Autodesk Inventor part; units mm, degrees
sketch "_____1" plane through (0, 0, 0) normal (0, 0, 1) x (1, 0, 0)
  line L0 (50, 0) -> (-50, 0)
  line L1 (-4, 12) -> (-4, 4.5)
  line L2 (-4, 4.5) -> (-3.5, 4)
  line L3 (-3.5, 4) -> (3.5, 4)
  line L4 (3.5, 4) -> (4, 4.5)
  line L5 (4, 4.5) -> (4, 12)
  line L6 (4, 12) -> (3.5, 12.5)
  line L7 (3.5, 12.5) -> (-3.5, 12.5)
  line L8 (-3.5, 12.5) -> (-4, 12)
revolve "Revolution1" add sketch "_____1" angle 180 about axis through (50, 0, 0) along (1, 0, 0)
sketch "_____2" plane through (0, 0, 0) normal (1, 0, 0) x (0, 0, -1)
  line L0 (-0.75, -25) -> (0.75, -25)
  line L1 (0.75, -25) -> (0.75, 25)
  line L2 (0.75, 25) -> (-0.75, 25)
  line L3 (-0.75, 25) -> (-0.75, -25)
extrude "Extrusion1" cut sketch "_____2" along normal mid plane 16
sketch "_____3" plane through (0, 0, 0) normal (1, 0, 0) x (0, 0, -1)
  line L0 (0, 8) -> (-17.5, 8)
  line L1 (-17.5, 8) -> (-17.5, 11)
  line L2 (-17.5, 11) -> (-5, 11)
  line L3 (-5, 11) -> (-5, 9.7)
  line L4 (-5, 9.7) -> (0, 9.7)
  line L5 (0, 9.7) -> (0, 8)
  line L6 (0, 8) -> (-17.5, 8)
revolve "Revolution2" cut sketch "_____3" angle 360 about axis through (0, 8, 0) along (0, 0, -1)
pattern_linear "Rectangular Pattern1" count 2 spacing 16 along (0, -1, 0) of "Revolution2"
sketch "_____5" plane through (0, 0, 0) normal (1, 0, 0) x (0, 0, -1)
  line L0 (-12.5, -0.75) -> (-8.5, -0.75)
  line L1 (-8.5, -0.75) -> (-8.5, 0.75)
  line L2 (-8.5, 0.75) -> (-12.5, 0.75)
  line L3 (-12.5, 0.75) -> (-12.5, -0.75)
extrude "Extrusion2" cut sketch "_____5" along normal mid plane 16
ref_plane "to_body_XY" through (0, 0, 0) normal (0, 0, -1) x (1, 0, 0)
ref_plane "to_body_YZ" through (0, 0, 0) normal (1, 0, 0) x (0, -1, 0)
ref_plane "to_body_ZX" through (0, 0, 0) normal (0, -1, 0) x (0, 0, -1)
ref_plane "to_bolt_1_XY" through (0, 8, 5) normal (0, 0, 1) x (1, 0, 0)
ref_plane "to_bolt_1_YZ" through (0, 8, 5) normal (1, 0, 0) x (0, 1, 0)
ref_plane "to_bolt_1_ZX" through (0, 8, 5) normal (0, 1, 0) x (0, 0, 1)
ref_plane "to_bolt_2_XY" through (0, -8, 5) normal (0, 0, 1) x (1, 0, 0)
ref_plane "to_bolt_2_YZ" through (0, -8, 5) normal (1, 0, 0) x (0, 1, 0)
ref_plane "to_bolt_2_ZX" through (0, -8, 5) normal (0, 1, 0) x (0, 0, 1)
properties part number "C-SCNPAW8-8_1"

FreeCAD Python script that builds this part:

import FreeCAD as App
import Part
import Sketcher

V = App.Vector
Q = App.Units.Quantity

doc = App.newDocument("Part")
body = doc.addObject("PartDesign::Body", "Body")

# Sketch on XY plane
sketch1 = doc.addObject("Sketcher::SketchObject", "Sketch")
body.addObject(sketch1)
sketch1.AttachmentSupport = (doc.XY_Plane, [""])
sketch1.MapMode = "FlatFace"
sketch1.addGeometry(Part.LineSegment(V(-3.5, 12.5, 0), V(-4, 12, 0)), False)
sketch1.addGeometry(Part.LineSegment(V(-4, 12, 0), V(-4, 4.5, 0)), False)
sketch1.addGeometry(Part.LineSegment(V(-4, 4.5, 0), V(-3.5, 4, 0)), False)
sketch1.addGeometry(Part.LineSegment(V(-3.5, 4, 0), V(3.5, 4, 0)), False)
sketch1.addGeometry(Part.LineSegment(V(3.5, 4, 0), V(4, 4.5, 0)), False)
sketch1.addGeometry(Part.LineSegment(V(4, 4.5, 0), V(4, 12, 0)), False)
sketch1.addGeometry(Part.LineSegment(V(4, 12, 0), V(3.5, 12.5, 0)), False)
sketch1.addGeometry(Part.LineSegment(V(3.5, 12.5, 0), V(-3.5, 12.5, 0)), False)
sketch1.addConstraint(Sketcher.Constraint("Coincident", 0, 2, 1, 1))
sketch1.addConstraint(Sketcher.Constraint("Coincident", 1, 2, 2, 1))
sketch1.addConstraint(Sketcher.Constraint("Coincident", 2, 2, 3, 1))
sketch1.addConstraint(Sketcher.Constraint("Coincident", 3, 2, 4, 1))
sketch1.addConstraint(Sketcher.Constraint("Coincident", 4, 2, 5, 1))
sketch1.addConstraint(Sketcher.Constraint("Coincident", 5, 2, 6, 1))
sketch1.addConstraint(Sketcher.Constraint("Coincident", 6, 2, 7, 1))
sketch1.addConstraint(Sketcher.Constraint("Coincident", 7, 2, 0, 1))
sketch1.addConstraint(Sketcher.Constraint("Vertical", 1))
sketch1.addConstraint(Sketcher.Constraint("Horizontal", 3))
sketch1.addConstraint(Sketcher.Constraint("Vertical", 5))
sketch1.addConstraint(Sketcher.Constraint("Horizontal", 7))
sketch1.addConstraint(Sketcher.Constraint("Symmetric", 1, 2, 4, 2, -2))
sketch1.addConstraint(Sketcher.Constraint("Perpendicular", 0, 2))
sketch1.addConstraint(Sketcher.Constraint("Perpendicular", 2, 4))
sketch1.addConstraint(Sketcher.Constraint("Perpendicular", 4, 6))
sketch1.addConstraint(Sketcher.Constraint("Horizontal", 0, 2, 5, 2))
sketch1.addConstraint(Sketcher.Constraint("Vertical", 3, 2, 6, 2))
sketch1.addConstraint(Sketcher.Constraint("Vertical", 2, 2, 7, 2))
sketch1.addConstraint(Sketcher.Constraint("DistanceX", 3, 1, 3, 2, Q("7 mm")))
sketch1.addConstraint(Sketcher.Constraint("DistanceY", 1, 2, 1, 1, Q("7.5 mm")))
sketch1.addConstraint(Sketcher.Constraint("DistanceX", 0, 2, -1, 1, Q("4 mm")))
sketch1.addConstraint(Sketcher.Constraint("DistanceY", -1, 1, 0, 2, Q("12 mm")))
revolution = doc.addObject("PartDesign::Revolution", "Revolution")
body.addObject(revolution)
revolution.Profile = sketch1
revolution.ReferenceAxis = (sketch1, ["H_Axis"])
revolution.Angle = 180

# Sketch on YZ plane
sketch2 = doc.addObject("Sketcher::SketchObject", "Sketch001")
body.addObject(sketch2)
sketch2.AttachmentSupport = (doc.YZ_Plane, [""])
sketch2.MapMode = "FlatFace"
sketch2.addGeometry(Part.LineSegment(V(25, 0.75, 0), V(-25, 0.75, 0)), False)
sketch2.addGeometry(Part.LineSegment(V(-25, 0.75, 0), V(-25, -0.75, 0)), False)
sketch2.addGeometry(Part.LineSegment(V(-25, -0.75, 0), V(25, -0.75, 0)), False)
sketch2.addGeometry(Part.LineSegment(V(25, -0.75, 0), V(25, 0.75, 0)), False)
sketch2.addConstraint(Sketcher.Constraint("Coincident", 0, 2, 1, 1))
sketch2.addConstraint(Sketcher.Constraint("Coincident", 1, 2, 2, 1))
sketch2.addConstraint(Sketcher.Constraint("Coincident", 2, 2, 3, 1))
sketch2.addConstraint(Sketcher.Constraint("Coincident", 3, 2, 0, 1))
sketch2.addConstraint(Sketcher.Constraint("Horizontal", 0))
sketch2.addConstraint(Sketcher.Constraint("Vertical", 1))
sketch2.addConstraint(Sketcher.Constraint("Horizontal", 2))
sketch2.addConstraint(Sketcher.Constraint("Vertical", 3))
sketch2.addConstraint(Sketcher.Constraint("Symmetric", 0, 2, 2, 2, -1, 1))
sketch2.addConstraint(Sketcher.Constraint("DistanceX", 0, 2, 0, 1, Q("50 mm")))
sketch2.addConstraint(Sketcher.Constraint("DistanceY", 1, 2, 1, 1, Q("1.5 mm")))
pocket1 = doc.addObject("PartDesign::Pocket", "Pocket")
body.addObject(pocket1)
pocket1.Profile = sketch2
pocket1.Length = 16
pocket1.Midplane = True

# Sketch on YZ plane
sketch3 = doc.addObject("Sketcher::SketchObject", "Sketch002")
body.addObject(sketch3)
sketch3.AttachmentSupport = (doc.YZ_Plane, [""])
sketch3.MapMode = "FlatFace"
sketch3.addGeometry(Part.LineSegment(V(8, 17.5, 0), V(8, 0, 0)), False)
sketch3.addGeometry(Part.LineSegment(V(8, 0, 0), V(9.7, 0, 0)), False)
sketch3.addGeometry(Part.LineSegment(V(9.7, 0, 0), V(9.7, 5, 0)), False)
sketch3.addGeometry(Part.LineSegment(V(9.7, 5, 0), V(11, 5, 0)), False)
sketch3.addGeometry(Part.LineSegment(V(11, 5, 0), V(11, 17.5, 0)), False)
sketch3.addGeometry(Part.LineSegment(V(11, 17.5, 0), V(8, 17.5, 0)), False)
sketch3.addGeometry(Part.LineSegment(V(8, 17.5, 0), V(8, 0, 0)), True)  # axis
sketch3.addConstraint(Sketcher.Constraint("Coincident", 0, 2, 1, 1))
sketch3.addConstraint(Sketcher.Constraint("Coincident", 1, 2, 2, 1))
sketch3.addConstraint(Sketcher.Constraint("Coincident", 2, 2, 3, 1))
sketch3.addConstraint(Sketcher.Constraint("Coincident", 3, 2, 4, 1))
sketch3.addConstraint(Sketcher.Constraint("Coincident", 4, 2, 5, 1))
sketch3.addConstraint(Sketcher.Constraint("Coincident", 5, 2, 0, 1))
sketch3.addConstraint(Sketcher.Constraint("Vertical", 0))
sketch3.addConstraint(Sketcher.Constraint("Horizontal", 1))
sketch3.addConstraint(Sketcher.Constraint("Vertical", 2))
sketch3.addConstraint(Sketcher.Constraint("Horizontal", 3))
sketch3.addConstraint(Sketcher.Constraint("Vertical", 4))
sketch3.addConstraint(Sketcher.Constraint("Horizontal", 5))
sketch3.addConstraint(Sketcher.Constraint("Vertical", 6))
sketch3.addConstraint(Sketcher.Constraint("Coincident", 6, 1, 5, 2))
sketch3.addConstraint(Sketcher.Constraint("PointOnObject", 0, 2, -1))
sketch3.addConstraint(Sketcher.Constraint("PointOnObject", 6, 2, -1))
sketch3.addConstraint(Sketcher.Constraint("DistanceX", 5, 2, 5, 1, Q("3 mm")))
sketch3.addConstraint(Sketcher.Constraint("DistanceY", 2, 1, 2, 2, Q("5 mm")))
sketch3.addConstraint(Sketcher.Constraint("DistanceX", 1, 1, 1, 2, Q("1.7 mm")))
sketch3.addConstraint(Sketcher.Constraint("DistanceY", 0, 2, 0, 1, Q("17.5 mm")))
sketch3.addConstraint(Sketcher.Constraint("DistanceX", -1, 1, 0, 2, Q("8 mm")))
groove = doc.addObject("PartDesign::Groove", "Groove")
body.addObject(groove)
groove.Profile = sketch3
groove.ReferenceAxis = (sketch3, ["Axis0"])
groove.Angle = 360
doc.recompute()

linearpattern = doc.addObject("PartDesign::LinearPattern", "LinearPattern")
body.addObject(linearpattern)
linearpattern.Originals = [groove]
linearpattern.Direction = (doc.Y_Axis, [""])
linearpattern.Mode = "offset"
linearpattern.Offset = 16
linearpattern.Occurrences = 2
linearpattern.Reversed = True
body.Tip = linearpattern

# Sketch on YZ plane
sketch4 = doc.addObject("Sketcher::SketchObject", "Sketch003")
body.addObject(sketch4)
sketch4.AttachmentSupport = (doc.YZ_Plane, [""])
sketch4.MapMode = "FlatFace"
sketch4.addGeometry(Part.LineSegment(V(0.75, 12.5, 0), V(-0.75, 12.5, 0)), False)
sketch4.addGeometry(Part.LineSegment(V(-0.75, 12.5, 0), V(-0.75, 8.5, 0)), False)
sketch4.addGeometry(Part.LineSegment(V(-0.75, 8.5, 0), V(0.75, 8.5, 0)), False)
sketch4.addGeometry(Part.LineSegment(V(0.75, 8.5, 0), V(0.75, 12.5, 0)), False)
sketch4.addConstraint(Sketcher.Constraint("Coincident", 0, 2, 1, 1))
sketch4.addConstraint(Sketcher.Constraint("Coincident", 1, 2, 2, 1))
sketch4.addConstraint(Sketcher.Constraint("Coincident", 2, 2, 3, 1))
sketch4.addConstraint(Sketcher.Constraint("Coincident", 3, 2, 0, 1))
sketch4.addConstraint(Sketcher.Constraint("Horizontal", 0))
sketch4.addConstraint(Sketcher.Constraint("Vertical", 1))
sketch4.addConstraint(Sketcher.Constraint("Horizontal", 2))
sketch4.addConstraint(Sketcher.Constraint("Vertical", 3))
sketch4.addConstraint(Sketcher.Constraint("DistanceY", 1, 2, 1, 1, Q("4 mm")))
sketch4.addConstraint(Sketcher.Constraint("DistanceX", 0, 2, 0, 1, Q("1.5 mm")))
sketch4.addConstraint(Sketcher.Constraint("DistanceY", -1, 1, 0, 2, Q("12.5 mm")))
sketch4.addConstraint(Sketcher.Constraint("DistanceX", 0, 2, -1, 1, Q("0.75 mm")))
pocket2 = doc.addObject("PartDesign::Pocket", "Pocket001")
body.addObject(pocket2)
pocket2.Profile = sketch4
pocket2.Length = 16
pocket2.Midplane = True

doc.recompute()
